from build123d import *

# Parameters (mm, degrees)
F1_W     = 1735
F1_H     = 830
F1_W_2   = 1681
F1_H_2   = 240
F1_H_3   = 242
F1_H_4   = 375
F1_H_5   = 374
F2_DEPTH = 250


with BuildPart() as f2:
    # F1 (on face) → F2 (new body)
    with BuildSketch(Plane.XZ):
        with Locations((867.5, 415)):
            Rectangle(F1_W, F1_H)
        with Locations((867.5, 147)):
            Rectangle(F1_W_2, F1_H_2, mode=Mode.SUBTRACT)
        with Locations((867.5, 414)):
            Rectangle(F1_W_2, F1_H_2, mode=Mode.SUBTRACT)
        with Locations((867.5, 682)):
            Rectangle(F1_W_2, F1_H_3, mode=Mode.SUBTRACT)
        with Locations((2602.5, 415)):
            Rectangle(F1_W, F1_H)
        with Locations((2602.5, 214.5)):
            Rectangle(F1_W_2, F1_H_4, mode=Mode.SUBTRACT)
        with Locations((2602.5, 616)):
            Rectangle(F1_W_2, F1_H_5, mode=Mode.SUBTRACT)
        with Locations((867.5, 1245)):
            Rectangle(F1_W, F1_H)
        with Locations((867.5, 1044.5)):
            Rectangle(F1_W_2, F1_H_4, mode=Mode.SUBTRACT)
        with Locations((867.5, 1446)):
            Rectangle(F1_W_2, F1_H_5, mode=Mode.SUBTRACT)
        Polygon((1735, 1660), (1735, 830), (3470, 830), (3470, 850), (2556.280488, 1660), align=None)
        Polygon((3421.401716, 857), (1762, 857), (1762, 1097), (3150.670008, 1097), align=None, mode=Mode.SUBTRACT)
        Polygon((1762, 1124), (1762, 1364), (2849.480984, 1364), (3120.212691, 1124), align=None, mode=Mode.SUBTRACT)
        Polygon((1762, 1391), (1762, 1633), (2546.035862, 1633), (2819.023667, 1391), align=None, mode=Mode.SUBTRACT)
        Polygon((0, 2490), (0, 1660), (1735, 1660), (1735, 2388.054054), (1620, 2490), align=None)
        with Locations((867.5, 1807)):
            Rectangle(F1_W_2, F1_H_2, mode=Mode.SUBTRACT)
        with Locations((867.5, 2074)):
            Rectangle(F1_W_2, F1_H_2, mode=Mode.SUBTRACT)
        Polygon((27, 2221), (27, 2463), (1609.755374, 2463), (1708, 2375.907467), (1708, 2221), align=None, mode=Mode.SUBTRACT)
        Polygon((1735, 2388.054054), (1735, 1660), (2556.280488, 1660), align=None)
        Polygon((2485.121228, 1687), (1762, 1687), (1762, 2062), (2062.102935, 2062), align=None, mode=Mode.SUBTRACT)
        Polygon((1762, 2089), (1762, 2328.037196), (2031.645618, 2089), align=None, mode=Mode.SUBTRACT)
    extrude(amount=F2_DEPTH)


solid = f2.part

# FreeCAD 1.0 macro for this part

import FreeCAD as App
import Part
import Sketcher
from FreeCAD import Vector
Q = App.Units.Quantity


def add_polygon(sketch, points):
    """Adds a closed chain of lines whose ends are joined by coincident constraints."""
    first, n = sketch.GeometryCount, len(points)
    for a, b in zip(points, points[1:] + points[:1]):
        sketch.addGeometry(Part.LineSegment(App.Vector(*a, 0), App.Vector(*b, 0)), False)
    for i in range(n):
        sketch.addConstraint(Sketcher.Constraint("Coincident", first + i, 2, first + (i + 1) % n, 1))

doc = App.newDocument("Part")
body = doc.addObject("PartDesign::Body", "Body")

# Sketch on XZ plane
sketch1 = body.newObject("Sketcher::SketchObject", "Sketch")
sketch1.AttachmentSupport = (doc.getObject("XZ_Plane"), [""])
sketch1.MapMode = "FlatFace"
add_polygon(sketch1, [(0, 0), (3470, 0), (3470, 850), (2556, 1660), (1735, 2388), (1620, 2490), (0, 2490)])  # lines 0-6
add_polygon(sketch1, [(1708, 27), (27, 27), (27, 267), (1708, 267)])  # lines 7-10
add_polygon(sketch1, [(1708, 294), (27, 294), (27, 534), (1708, 534)])  # lines 11-14
add_polygon(sketch1, [(1708, 561), (27, 561), (27, 803), (1708, 803)])  # lines 15-18
add_polygon(sketch1, [(1708, 857), (27, 857), (27, 1232), (1708, 1232)])  # lines 19-22
add_polygon(sketch1, [(3443, 27), (1762, 27), (1762, 402), (3443, 402)])  # lines 23-26
add_polygon(sketch1, [(3443, 429), (1762, 429), (1762, 803), (3443, 803)])  # lines 27-30
add_polygon(sketch1, [(3120, 1124), (1762, 1124), (1762, 1364), (2849, 1364)])  # lines 31-34
add_polygon(sketch1, [(3151, 1097), (3421, 857), (1762, 857), (1762, 1097)])  # lines 35-38
add_polygon(sketch1, [(1708, 1259), (27, 1259), (27, 1633), (1708, 1633)])  # lines 39-42
add_polygon(sketch1, [(1708, 1687), (27, 1687), (27, 1927), (1708, 1927)])  # lines 43-46
add_polygon(sketch1, [(1708, 1954), (27, 1954), (27, 2194), (1708, 2194)])  # lines 47-50
add_polygon(sketch1, [(1708, 2221), (27, 2221), (27, 2463), (1610, 2463), (1708, 2376)])  # lines 51-55
add_polygon(sketch1, [(2819, 1391), (1762, 1391), (1762, 1633), (2546, 1633)])  # lines 56-59
add_polygon(sketch1, [(2062, 2062), (2485, 1687), (1762, 1687), (1762, 2062)])  # lines 60-63
add_polygon(sketch1, [(2032, 2089), (1762, 2089), (1762, 2328)])  # lines 64-66
sketch1.addConstraint([
    Sketcher.Constraint("Horizontal", 0),
    Sketcher.Constraint("Vertical", 1),
    Sketcher.Constraint("Horizontal", 5),
    Sketcher.Constraint("Vertical", 6),
    Sketcher.Constraint("Horizontal", 7),
    Sketcher.Constraint("Vertical", 8),
    Sketcher.Constraint("Horizontal", 9),
    Sketcher.Constraint("Vertical", 10),
    Sketcher.Constraint("Horizontal", 11),
    Sketcher.Constraint("Vertical", 12),
    Sketcher.Constraint("Horizontal", 13),
    Sketcher.Constraint("Vertical", 14),
    Sketcher.Constraint("Horizontal", 15),
    Sketcher.Constraint("Vertical", 16),
    Sketcher.Constraint("Horizontal", 17),
    Sketcher.Constraint("Vertical", 18),
    Sketcher.Constraint("Horizontal", 19),
    Sketcher.Constraint("Vertical", 20),
    Sketcher.Constraint("Horizontal", 21),
    Sketcher.Constraint("Vertical", 22),
    Sketcher.Constraint("Horizontal", 23),
    Sketcher.Constraint("Vertical", 24),
    Sketcher.Constraint("Horizontal", 25),
    Sketcher.Constraint("Vertical", 26),
    Sketcher.Constraint("Horizontal", 27),
    Sketcher.Constraint("Vertical", 28),
    Sketcher.Constraint("Horizontal", 29),
    Sketcher.Constraint("Vertical", 30),
    Sketcher.Constraint("Horizontal", 31),
    Sketcher.Constraint("Vertical", 32),
    Sketcher.Constraint("Horizontal", 33),
    Sketcher.Constraint("Horizontal", 36),
    Sketcher.Constraint("Vertical", 37),
    Sketcher.Constraint("Horizontal", 38),
    Sketcher.Constraint("Horizontal", 39),
    Sketcher.Constraint("Vertical", 40),
    Sketcher.Constraint("Horizontal", 41),
    Sketcher.Constraint("Vertical", 42),
    Sketcher.Constraint("Horizontal", 43),
    Sketcher.Constraint("Vertical", 44),
    Sketcher.Constraint("Horizontal", 45),
    Sketcher.Constraint("Vertical", 46),
    Sketcher.Constraint("Horizontal", 47),
    Sketcher.Constraint("Vertical", 48),
    Sketcher.Constraint("Horizontal", 49),
    Sketcher.Constraint("Vertical", 50),
    Sketcher.Constraint("Horizontal", 51),
    Sketcher.Constraint("Vertical", 52),
    Sketcher.Constraint("Horizontal", 53),
    Sketcher.Constraint("Vertical", 55),
    Sketcher.Constraint("Horizontal", 56),
    Sketcher.Constraint("Vertical", 57),
    Sketcher.Constraint("Horizontal", 58),
    Sketcher.Constraint("Horizontal", 61),
    Sketcher.Constraint("Vertical", 62),
    Sketcher.Constraint("Horizontal", 63),
    Sketcher.Constraint("Horizontal", 64),
    Sketcher.Constraint("Vertical", 65),
    Sketcher.Constraint("Coincident", 6, 2, -1, 1),
    Sketcher.Constraint("Parallel", 2, 3),
    Sketcher.Constraint("Parallel", 3, 4),
    Sketcher.Constraint("Parallel", 4, 34),
    Sketcher.Constraint("Parallel", 34, 35),
    Sketcher.Constraint("Parallel", 35, 54),
    Sketcher.Constraint("Parallel", 54, 59),
    Sketcher.Constraint("Parallel", 59, 60),
    Sketcher.Constraint("Parallel", 60, 66),
    Sketcher.Constraint("Horizontal", 10, 2, 23, 2),
    Sketcher.Constraint("Horizontal", 17, 2, 28, 2),
    Sketcher.Constraint("Horizontal", 22, 2, 35, 2),
    Sketcher.Constraint("Horizontal", 41, 2, 57, 2),
    Sketcher.Constraint("Horizontal", 46, 2, 60, 2),
    Sketcher.Constraint("Vertical", 8, 2, 11, 2),
    Sketcher.Constraint("Vertical", 10, 2, 13, 2),
    Sketcher.Constraint("Vertical", 12, 2, 15, 2),
    Sketcher.Constraint("Vertical", 14, 2, 17, 2),
    Sketcher.Constraint("Vertical", 16, 2, 19, 2),
    Sketcher.Constraint("Vertical", 18, 2, 21, 2),
    Sketcher.Constraint("Vertical", 24, 2, 27, 2),
    Sketcher.Constraint("Vertical", 26, 2, 29, 2),
    Sketcher.Constraint("Vertical", 28, 2, 31, 2),
    Sketcher.Constraint("Vertical", 32, 2, 36, 2),
    Sketcher.Constraint("Vertical", 20, 2, 39, 2),
    Sketcher.Constraint("Vertical", 22, 2, 41, 2),
    Sketcher.Constraint("Vertical", 40, 2, 43, 2),
    Sketcher.Constraint("Vertical", 42, 2, 45, 2),
    Sketcher.Constraint("Vertical", 44, 2, 47, 2),
    Sketcher.Constraint("Vertical", 46, 2, 49, 2),
    Sketcher.Constraint("Vertical", 48, 2, 51, 2),
    Sketcher.Constraint("Vertical", 50, 2, 54, 2),
    Sketcher.Constraint("Vertical", 37, 2, 56, 2),
    Sketcher.Constraint("Vertical", 57, 2, 61, 2),
    Sketcher.Constraint("Vertical", 62, 2, 64, 2),
    Sketcher.Constraint("Equal", 21, 23),
    Sketcher.Constraint("Equal", 10, 12),
    Sketcher.Constraint("Equal", 22, 24),
    Sketcher.Constraint("Equal", 14, 32),
    Sketcher.Constraint("Equal", 32, 37),
    Sketcher.Constraint("Equal", 30, 40),
    Sketcher.Constraint("Equal", 37, 44),
    Sketcher.Constraint("Equal", 46, 48),
    Sketcher.Constraint("Equal", 18, 52),
    Sketcher.Constraint("Equal", 52, 57),
    Sketcher.Constraint("Equal", 26, 62),
    Sketcher.Constraint("DistanceX", 0, 1, 0, 2, Q("3470 mm")),
    Sketcher.Constraint("DistanceX", 5, 2, 5, 1, Q("1620 mm")),
    Sketcher.Constraint("DistanceX", 7, 2, 7, 1, Q("1681 mm")),
    Sketcher.Constraint("DistanceY", 1, 1, 1, 2, Q("850 mm")),
    Sketcher.Constraint("DistanceY", 6, 2, 6, 1, Q("2490 mm")),
    Sketcher.Constraint("DistanceY", 8, 1, 8, 2, Q("240 mm")),
    Sketcher.Constraint("DistanceY", 16, 1, 16, 2, Q("242 mm")),
    Sketcher.Constraint("DistanceY", 20, 1, 20, 2, Q("375 mm")),
    Sketcher.Constraint("DistanceY", 28, 1, 28, 2, Q("374 mm")),
    Sketcher.Constraint("DistanceY", -1, 1, 2, 2, Q("1660 mm")),
    Sketcher.Constraint("DistanceX", -1, 1, 3, 2, Q("1735 mm")),
    Sketcher.Constraint("DistanceX", -1, 1, 7, 2, Q("27 mm")),
    Sketcher.Constraint("DistanceY", -1, 1, 7, 2, Q("27 mm")),
    Sketcher.Constraint("DistanceY", -1, 1, 11, 2, Q("294 mm")),
    Sketcher.Constraint("DistanceY", -1, 1, 15, 2, Q("561 mm")),
    Sketcher.Constraint("DistanceY", -1, 1, 19, 2, Q("857 mm")),
    Sketcher.Constraint("DistanceX", -1, 1, 23, 2, Q("1762 mm")),
    Sketcher.Constraint("DistanceY", -1, 1, 31, 2, Q("1124 mm")),
    Sketcher.Constraint("DistanceY", -1, 1, 39, 2, Q("1259 mm")),
    Sketcher.Constraint("DistanceY", -1, 1, 43, 2, Q("1687 mm")),
    Sketcher.Constraint("DistanceY", -1, 1, 47, 2, Q("1954 mm")),
    Sketcher.Constraint("DistanceY", -1, 1, 51, 2, Q("2221 mm")),
    Sketcher.Constraint("DistanceY", -1, 1, 64, 2, Q("2089 mm")),
    Sketcher.Constraint("DistanceX", 31, 2, 31, 1, Q("1358.212691 mm")),
    Sketcher.Constraint("DistanceX", 38, 1, 38, 2, Q("1388.670008 mm")),
    Sketcher.Constraint("DistanceX", 61, 2, 61, 1, Q("723.121228 mm")),
    Sketcher.Constraint("DistanceX", 64, 2, 64, 1, Q("269.645618 mm")),
    Sketcher.Constraint("DistanceX", 53, 1, 53, 2, Q("1582.755374 mm")),
    Sketcher.Constraint("DistanceX", 56, 2, 56, 1, Q("1057.023667 mm")),
])
pad1 = body.newObject("PartDesign::Pad", "Pad")
pad1.Profile = sketch1
pad1.Length = 250

doc.recompute()
